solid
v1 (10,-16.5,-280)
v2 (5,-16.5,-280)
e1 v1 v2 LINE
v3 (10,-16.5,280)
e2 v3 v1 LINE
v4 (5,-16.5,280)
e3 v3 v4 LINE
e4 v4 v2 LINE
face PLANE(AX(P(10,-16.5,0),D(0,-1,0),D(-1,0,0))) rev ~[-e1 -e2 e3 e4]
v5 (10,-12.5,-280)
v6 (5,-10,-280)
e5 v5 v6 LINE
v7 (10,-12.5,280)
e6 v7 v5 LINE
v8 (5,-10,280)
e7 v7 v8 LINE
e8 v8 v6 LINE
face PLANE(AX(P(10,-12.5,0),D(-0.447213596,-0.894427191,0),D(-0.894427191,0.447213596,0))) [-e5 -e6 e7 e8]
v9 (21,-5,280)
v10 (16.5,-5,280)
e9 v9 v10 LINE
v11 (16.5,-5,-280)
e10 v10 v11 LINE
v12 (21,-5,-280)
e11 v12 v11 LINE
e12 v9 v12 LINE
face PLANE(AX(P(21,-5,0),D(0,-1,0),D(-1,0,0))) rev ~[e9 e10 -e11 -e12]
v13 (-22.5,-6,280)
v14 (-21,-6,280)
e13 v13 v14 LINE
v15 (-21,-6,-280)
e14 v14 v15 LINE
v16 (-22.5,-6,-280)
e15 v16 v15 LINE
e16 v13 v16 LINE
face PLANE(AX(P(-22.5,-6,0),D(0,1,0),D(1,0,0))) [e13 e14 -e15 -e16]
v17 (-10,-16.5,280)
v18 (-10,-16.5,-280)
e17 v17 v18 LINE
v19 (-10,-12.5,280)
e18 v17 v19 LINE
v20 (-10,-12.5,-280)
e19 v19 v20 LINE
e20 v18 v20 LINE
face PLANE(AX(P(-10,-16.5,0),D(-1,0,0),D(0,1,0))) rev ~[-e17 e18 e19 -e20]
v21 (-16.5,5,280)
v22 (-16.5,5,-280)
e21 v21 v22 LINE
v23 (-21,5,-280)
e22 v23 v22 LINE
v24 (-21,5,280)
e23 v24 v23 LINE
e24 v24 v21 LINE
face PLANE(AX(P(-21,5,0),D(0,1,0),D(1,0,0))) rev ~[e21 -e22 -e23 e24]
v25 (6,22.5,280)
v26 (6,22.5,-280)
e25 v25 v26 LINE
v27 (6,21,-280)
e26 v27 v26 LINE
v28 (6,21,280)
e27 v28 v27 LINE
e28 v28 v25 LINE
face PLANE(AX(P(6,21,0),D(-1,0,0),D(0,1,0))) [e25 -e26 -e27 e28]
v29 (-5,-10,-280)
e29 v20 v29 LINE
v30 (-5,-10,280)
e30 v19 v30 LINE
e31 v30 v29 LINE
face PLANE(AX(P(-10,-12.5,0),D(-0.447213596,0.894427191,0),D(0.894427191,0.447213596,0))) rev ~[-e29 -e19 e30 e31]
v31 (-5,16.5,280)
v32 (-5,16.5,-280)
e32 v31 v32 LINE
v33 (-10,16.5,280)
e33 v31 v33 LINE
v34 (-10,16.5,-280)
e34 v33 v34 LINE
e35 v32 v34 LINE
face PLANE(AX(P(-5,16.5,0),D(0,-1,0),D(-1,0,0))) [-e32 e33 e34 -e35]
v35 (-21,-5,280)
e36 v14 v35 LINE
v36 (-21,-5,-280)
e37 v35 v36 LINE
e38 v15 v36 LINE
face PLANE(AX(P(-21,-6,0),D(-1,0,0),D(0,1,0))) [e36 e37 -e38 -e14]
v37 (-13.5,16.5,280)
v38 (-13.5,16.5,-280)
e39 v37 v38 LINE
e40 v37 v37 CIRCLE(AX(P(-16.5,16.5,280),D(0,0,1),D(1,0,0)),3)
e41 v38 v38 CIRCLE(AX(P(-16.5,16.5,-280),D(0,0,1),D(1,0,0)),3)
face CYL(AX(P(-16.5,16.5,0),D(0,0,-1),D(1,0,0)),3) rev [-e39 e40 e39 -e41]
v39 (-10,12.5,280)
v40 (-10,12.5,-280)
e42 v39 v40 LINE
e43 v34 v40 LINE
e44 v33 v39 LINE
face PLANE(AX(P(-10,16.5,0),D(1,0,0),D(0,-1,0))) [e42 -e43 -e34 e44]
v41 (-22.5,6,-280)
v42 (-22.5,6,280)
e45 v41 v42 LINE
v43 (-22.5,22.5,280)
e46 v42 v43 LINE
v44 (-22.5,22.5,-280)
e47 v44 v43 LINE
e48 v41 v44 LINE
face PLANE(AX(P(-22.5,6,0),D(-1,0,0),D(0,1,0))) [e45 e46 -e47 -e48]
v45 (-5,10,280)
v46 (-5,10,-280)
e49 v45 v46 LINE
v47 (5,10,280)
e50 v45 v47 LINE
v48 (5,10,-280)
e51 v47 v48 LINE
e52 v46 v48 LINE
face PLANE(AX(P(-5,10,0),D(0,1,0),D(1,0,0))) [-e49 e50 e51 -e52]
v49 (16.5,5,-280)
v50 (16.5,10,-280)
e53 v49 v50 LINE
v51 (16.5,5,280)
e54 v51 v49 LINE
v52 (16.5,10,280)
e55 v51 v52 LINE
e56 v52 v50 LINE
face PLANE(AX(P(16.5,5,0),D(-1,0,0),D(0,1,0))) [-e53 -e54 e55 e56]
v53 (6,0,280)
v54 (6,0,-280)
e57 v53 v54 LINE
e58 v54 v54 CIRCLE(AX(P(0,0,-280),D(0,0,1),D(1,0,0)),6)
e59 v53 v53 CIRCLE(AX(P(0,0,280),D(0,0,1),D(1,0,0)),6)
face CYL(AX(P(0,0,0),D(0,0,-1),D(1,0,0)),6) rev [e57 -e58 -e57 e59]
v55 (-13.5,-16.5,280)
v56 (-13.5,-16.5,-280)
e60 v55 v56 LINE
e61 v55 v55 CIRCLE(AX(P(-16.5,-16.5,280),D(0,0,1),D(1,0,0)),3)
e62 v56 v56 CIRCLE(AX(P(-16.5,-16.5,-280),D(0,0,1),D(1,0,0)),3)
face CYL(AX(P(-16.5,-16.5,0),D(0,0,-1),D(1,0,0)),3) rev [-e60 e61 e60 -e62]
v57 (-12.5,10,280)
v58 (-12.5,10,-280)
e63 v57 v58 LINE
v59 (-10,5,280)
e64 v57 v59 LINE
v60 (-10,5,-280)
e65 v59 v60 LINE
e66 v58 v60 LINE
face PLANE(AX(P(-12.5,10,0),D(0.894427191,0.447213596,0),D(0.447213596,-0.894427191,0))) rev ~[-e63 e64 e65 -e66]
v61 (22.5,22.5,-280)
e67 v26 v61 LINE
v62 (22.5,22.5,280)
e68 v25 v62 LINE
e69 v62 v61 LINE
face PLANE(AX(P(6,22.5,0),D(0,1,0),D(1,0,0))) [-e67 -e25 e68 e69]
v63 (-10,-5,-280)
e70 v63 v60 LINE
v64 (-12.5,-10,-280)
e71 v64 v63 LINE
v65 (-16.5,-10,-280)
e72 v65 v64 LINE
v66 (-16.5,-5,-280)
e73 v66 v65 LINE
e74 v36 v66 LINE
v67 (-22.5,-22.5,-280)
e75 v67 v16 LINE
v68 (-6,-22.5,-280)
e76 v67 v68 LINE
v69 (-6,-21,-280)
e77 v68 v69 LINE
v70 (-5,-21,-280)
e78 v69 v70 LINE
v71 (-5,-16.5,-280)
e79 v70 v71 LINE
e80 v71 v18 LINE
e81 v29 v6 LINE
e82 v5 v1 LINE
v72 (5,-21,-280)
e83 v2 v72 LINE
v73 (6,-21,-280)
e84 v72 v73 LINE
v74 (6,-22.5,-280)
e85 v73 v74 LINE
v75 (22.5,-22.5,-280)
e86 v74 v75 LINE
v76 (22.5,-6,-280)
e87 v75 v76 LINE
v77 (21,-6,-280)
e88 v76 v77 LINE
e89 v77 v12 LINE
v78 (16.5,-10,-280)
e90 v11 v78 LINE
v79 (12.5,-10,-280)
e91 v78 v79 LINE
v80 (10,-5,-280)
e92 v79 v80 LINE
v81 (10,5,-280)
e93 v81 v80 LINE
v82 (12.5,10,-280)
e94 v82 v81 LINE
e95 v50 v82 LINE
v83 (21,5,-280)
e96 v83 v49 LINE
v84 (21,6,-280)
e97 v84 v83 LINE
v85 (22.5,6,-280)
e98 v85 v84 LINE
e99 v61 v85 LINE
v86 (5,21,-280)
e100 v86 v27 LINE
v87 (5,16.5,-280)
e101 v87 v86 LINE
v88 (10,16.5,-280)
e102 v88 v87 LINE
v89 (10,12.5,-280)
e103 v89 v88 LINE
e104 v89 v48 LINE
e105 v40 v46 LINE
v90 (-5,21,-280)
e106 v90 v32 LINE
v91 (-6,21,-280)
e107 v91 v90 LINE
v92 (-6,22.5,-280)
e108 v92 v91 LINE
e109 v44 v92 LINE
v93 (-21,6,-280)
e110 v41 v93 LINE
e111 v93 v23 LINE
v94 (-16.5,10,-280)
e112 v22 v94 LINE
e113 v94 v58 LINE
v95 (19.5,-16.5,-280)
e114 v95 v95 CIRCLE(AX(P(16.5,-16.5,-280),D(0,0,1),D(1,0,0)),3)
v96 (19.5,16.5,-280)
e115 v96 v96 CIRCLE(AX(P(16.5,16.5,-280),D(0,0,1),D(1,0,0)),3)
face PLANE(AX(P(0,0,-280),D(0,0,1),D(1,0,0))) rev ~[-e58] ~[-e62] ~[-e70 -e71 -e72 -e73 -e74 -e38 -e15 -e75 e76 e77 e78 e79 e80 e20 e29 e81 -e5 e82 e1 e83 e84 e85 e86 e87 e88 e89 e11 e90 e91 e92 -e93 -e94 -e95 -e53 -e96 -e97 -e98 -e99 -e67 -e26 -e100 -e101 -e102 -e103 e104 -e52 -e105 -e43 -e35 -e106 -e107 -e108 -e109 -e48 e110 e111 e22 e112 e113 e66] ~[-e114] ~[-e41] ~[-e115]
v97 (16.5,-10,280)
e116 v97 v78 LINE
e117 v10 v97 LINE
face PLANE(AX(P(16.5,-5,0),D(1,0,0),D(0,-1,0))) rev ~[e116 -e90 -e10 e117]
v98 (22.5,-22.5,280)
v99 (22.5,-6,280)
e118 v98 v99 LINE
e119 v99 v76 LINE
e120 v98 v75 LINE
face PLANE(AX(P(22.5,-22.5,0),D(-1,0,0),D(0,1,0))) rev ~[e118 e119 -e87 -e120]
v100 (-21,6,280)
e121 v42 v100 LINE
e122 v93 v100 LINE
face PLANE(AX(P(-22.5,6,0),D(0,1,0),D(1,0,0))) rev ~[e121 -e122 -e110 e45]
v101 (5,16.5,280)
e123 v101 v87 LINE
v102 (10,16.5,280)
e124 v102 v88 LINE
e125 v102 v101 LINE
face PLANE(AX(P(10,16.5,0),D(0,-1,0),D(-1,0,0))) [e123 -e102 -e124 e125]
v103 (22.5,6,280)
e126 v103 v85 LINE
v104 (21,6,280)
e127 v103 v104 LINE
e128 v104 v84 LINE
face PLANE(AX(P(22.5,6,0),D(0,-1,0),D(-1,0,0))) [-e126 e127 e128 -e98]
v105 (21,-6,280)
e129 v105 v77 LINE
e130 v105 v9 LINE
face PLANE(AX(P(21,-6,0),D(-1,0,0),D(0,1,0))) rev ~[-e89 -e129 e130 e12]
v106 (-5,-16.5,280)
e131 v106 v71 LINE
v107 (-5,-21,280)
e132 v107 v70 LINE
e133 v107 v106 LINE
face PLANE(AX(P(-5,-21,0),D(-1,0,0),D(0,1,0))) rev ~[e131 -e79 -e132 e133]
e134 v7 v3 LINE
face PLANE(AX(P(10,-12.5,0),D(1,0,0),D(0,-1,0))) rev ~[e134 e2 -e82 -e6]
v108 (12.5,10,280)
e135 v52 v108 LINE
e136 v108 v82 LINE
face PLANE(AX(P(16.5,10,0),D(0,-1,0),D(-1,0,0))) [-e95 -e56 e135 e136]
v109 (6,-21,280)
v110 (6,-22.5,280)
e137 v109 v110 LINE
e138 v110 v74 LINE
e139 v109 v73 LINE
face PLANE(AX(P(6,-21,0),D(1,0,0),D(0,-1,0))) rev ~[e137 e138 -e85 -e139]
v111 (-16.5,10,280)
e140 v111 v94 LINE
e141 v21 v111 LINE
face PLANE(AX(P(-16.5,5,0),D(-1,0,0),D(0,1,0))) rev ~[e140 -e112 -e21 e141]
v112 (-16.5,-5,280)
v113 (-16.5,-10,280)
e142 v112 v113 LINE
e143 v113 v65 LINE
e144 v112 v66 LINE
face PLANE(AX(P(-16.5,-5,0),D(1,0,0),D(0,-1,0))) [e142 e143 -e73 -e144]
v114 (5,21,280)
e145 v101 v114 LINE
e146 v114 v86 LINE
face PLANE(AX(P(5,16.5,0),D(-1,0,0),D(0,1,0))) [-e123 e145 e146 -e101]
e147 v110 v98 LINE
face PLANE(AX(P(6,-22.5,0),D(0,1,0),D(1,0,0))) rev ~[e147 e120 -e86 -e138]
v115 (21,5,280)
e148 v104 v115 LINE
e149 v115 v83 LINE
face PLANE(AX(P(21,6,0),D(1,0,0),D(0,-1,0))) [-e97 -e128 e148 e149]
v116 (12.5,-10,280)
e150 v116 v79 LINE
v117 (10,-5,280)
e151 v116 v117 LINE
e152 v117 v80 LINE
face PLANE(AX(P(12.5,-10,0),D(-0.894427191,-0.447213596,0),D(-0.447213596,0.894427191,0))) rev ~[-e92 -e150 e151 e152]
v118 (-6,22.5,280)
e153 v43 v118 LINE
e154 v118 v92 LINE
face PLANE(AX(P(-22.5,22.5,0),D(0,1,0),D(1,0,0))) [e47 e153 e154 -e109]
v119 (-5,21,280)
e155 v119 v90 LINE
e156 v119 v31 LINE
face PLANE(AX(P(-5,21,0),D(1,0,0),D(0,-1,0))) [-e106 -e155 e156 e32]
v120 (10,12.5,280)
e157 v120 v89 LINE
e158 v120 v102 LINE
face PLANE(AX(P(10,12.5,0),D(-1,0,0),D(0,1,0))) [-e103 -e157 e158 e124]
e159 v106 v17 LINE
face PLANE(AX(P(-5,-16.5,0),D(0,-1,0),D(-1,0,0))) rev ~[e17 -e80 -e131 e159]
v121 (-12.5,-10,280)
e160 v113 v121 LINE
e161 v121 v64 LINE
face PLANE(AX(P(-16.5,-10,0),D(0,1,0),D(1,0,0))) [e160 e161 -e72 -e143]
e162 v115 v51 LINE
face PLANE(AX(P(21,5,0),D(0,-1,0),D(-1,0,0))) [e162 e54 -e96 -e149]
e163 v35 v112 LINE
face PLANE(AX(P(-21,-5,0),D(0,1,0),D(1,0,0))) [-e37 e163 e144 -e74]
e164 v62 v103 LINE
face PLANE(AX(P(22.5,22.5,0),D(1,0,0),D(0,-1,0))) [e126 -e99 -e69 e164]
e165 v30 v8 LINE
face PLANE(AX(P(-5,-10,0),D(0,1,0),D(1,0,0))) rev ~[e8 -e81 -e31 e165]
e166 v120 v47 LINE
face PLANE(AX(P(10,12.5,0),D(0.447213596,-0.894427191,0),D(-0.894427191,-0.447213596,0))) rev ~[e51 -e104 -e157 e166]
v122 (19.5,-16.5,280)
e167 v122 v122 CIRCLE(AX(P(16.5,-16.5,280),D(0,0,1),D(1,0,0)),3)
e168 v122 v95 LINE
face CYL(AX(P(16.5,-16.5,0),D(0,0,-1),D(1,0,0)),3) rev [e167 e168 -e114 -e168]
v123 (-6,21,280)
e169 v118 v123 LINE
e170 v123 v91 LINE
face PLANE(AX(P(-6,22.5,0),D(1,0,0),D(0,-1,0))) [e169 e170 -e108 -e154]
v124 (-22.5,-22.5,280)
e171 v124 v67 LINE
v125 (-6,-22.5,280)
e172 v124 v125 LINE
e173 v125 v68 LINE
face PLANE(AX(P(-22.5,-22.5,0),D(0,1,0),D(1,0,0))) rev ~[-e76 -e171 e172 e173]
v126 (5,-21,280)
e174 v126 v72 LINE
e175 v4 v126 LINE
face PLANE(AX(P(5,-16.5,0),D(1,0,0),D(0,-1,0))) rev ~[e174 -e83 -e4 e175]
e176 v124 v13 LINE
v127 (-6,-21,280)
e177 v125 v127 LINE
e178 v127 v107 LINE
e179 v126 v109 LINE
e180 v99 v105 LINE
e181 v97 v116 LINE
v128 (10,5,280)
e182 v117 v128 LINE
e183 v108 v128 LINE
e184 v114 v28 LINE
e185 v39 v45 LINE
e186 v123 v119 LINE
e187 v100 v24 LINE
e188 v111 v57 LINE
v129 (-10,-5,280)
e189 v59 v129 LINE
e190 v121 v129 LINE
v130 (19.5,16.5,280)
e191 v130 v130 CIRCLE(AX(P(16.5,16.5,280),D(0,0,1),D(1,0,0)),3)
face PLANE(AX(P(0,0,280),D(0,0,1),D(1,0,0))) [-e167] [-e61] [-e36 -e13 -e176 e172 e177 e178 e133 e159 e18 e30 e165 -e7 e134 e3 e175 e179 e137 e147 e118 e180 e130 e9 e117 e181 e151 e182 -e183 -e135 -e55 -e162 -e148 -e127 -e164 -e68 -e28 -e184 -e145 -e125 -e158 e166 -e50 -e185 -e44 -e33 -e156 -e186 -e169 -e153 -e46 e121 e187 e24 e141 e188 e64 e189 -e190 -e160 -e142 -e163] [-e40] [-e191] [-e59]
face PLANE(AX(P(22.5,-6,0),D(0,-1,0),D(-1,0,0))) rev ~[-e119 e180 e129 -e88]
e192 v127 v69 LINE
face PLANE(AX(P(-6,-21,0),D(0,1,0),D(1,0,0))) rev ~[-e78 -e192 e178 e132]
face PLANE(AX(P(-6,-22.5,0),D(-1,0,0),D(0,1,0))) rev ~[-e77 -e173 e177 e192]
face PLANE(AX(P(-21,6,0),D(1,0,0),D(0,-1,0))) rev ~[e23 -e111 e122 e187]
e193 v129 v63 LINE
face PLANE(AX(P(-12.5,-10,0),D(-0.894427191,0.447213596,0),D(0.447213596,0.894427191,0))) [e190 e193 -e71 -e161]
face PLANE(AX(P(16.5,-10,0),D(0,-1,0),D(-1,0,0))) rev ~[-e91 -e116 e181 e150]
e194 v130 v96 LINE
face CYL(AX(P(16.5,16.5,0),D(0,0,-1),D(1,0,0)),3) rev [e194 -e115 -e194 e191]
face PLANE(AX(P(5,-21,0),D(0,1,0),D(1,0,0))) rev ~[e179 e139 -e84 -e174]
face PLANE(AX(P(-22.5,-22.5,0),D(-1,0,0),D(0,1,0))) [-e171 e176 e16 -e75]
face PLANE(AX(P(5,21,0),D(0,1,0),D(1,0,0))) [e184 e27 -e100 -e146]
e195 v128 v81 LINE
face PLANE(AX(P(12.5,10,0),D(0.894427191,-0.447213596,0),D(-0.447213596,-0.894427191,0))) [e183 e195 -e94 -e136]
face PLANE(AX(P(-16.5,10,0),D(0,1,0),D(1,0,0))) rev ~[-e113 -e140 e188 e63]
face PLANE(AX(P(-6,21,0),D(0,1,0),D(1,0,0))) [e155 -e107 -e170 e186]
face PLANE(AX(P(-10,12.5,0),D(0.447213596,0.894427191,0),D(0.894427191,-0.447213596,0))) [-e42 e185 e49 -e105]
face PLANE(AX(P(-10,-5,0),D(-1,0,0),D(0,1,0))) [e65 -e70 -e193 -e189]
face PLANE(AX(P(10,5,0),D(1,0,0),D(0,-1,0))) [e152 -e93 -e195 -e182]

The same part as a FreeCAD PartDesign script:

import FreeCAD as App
import Part
import Sketcher

V = App.Vector


def add_polygon(sketch, points):
    """Adds a closed chain of lines whose ends are joined by coincident constraints."""
    first, n = sketch.GeometryCount, len(points)
    for a, b in zip(points, points[1:] + points[:1]):
        sketch.addGeometry(Part.LineSegment(App.Vector(*a, 0), App.Vector(*b, 0)), False)
    for i in range(n):
        sketch.addConstraint(Sketcher.Constraint("Coincident", first + i, 2, first + (i + 1) % n, 1))

doc = App.newDocument("Part")
body = doc.addObject("PartDesign::Body", "Body")

sketch1 = body.newObject("Sketcher::SketchObject", "Sketch")
sketch1.AttachmentSupport = (doc.getObject("XY_Plane"), [""])
sketch1.MapMode = "FlatFace"
add_polygon(sketch1, [(-6, 22.5), (-22.5, 22.5), (-22.5, 6), (-21, 6), (-21, 5), (-16.5, 5), (-16.5, 10), (-12.5, 10), (-10, 5), (-10, -5), (-12.5, -10), (-16.5, -10), (-16.5, -5), (-21, -5), (-21, -6), (-22.5, -6), (-22.5, -22.5), (-6, -22.5), (-6, -21), (-5, -21), (-5, -16.5), (-10, -16.5), (-10, -12.5), (-5, -10), (5, -10), (10, -12.5), (10, -16.5), (5, -16.5), (5, -21), (6, -21), (6, -22.5), (22.5, -22.5), (22.5, -6), (21, -6), (21, -5), (16.5, -5), (16.5, -10), (12.5, -10), (10, -5), (10, 5), (12.5, 10), (16.5, 10), (16.5, 5), (21, 5), (21, 6), (22.5, 6), (22.5, 22.5), (6, 22.5), (6, 21), (5, 21), (5, 16.5), (10, 16.5), (10, 12.5), (5, 10), (-5, 10), (-10, 12.5), (-10, 16.5), (-5, 16.5), (-5, 21), (-6, 21)])
sketch1.addGeometry(Part.Circle(V(-16.5, -16.5, 0), V(0, 0, 1), 3), False)
sketch1.addGeometry(Part.Circle(V(16.5, -16.5, 0), V(0, 0, 1), 3), False)
sketch1.addGeometry(Part.Circle(V(-16.5, 16.5, 0), V(0, 0, 1), 3), False)
sketch1.addGeometry(Part.Circle(V(0, 0, 0), V(0, 0, 1), 6), False)
sketch1.addGeometry(Part.Circle(V(16.5, 16.5, 0), V(0, 0, 1), 3), False)
sketch1.addConstraint([
    Sketcher.Constraint("Horizontal", 0),
    Sketcher.Constraint("Vertical", 1),
    Sketcher.Constraint("Horizontal", 2),
    Sketcher.Constraint("Vertical", 3),
    Sketcher.Constraint("Horizontal", 4),
    Sketcher.Constraint("Vertical", 5),
    Sketcher.Constraint("Horizontal", 6),
    Sketcher.Constraint("Vertical", 8),
    Sketcher.Constraint("Horizontal", 10),
    Sketcher.Constraint("Vertical", 11),
    Sketcher.Constraint("Horizontal", 12),
    Sketcher.Constraint("Vertical", 13),
    Sketcher.Constraint("Horizontal", 14),
    Sketcher.Constraint("Vertical", 15),
    Sketcher.Constraint("Horizontal", 16),
    Sketcher.Constraint("Vertical", 17),
    Sketcher.Constraint("Horizontal", 18),
    Sketcher.Constraint("Vertical", 19),
    Sketcher.Constraint("Horizontal", 20),
    Sketcher.Constraint("Vertical", 21),
    Sketcher.Constraint("Horizontal", 23),
    Sketcher.Constraint("Vertical", 25),
    Sketcher.Constraint("Horizontal", 26),
    Sketcher.Constraint("Vertical", 27),
    Sketcher.Constraint("Horizontal", 28),
    Sketcher.Constraint("Vertical", 29),
    Sketcher.Constraint("Horizontal", 30),
    Sketcher.Constraint("Vertical", 31),
    Sketcher.Constraint("Horizontal", 32),
    Sketcher.Constraint("Vertical", 33),
    Sketcher.Constraint("Horizontal", 34),
    Sketcher.Constraint("Vertical", 35),
    Sketcher.Constraint("Horizontal", 36),
    Sketcher.Constraint("Vertical", 38),
    Sketcher.Constraint("Horizontal", 40),
    Sketcher.Constraint("Vertical", 41),
    Sketcher.Constraint("Horizontal", 42),
    Sketcher.Constraint("Vertical", 43),
    Sketcher.Constraint("Horizontal", 44),
    Sketcher.Constraint("Vertical", 45),
    Sketcher.Constraint("Horizontal", 46),
    Sketcher.Constraint("Vertical", 47),
    Sketcher.Constraint("Horizontal", 48),
    Sketcher.Constraint("Vertical", 49),
    Sketcher.Constraint("Horizontal", 50),
    Sketcher.Constraint("Vertical", 51),
    Sketcher.Constraint("Horizontal", 53),
    Sketcher.Constraint("Vertical", 55),
    Sketcher.Constraint("Horizontal", 56),
    Sketcher.Constraint("Vertical", 57),
    Sketcher.Constraint("Horizontal", 58),
    Sketcher.Constraint("Vertical", 59),
    Sketcher.Constraint("Coincident", 63, 3, -1, 1),
    Sketcher.Constraint("Equal", 60, 61),
    Sketcher.Constraint("Equal", 61, 62),
    Sketcher.Constraint("Equal", 62, 64),
    Sketcher.Constraint("Symmetric", 61, 3, 62, 3, -1, 1),
    Sketcher.Constraint("Symmetric", 60, 3, 64, 3, -1, 1),
    Sketcher.Constraint("Symmetric", 0, 2, 30, 2, -1, 1),
    Sketcher.Constraint("Symmetric", 2, 2, 32, 2, -1, 1),
    Sketcher.Constraint("Symmetric", 4, 2, 34, 2, -1, 1),
    Sketcher.Constraint("Symmetric", 6, 2, 36, 2, -1, 1),
    Sketcher.Constraint("Symmetric", 7, 2, 37, 2, -1, 1),
    Sketcher.Constraint("Symmetric", 9, 2, 39, 2, -1, 1),
    Sketcher.Constraint("Symmetric", 11, 2, 41, 2, -1, 1),
    Sketcher.Constraint("Symmetric", 13, 2, 43, 2, -1, 1),
    Sketcher.Constraint("Symmetric", 15, 2, 45, 2, -1, 1),
    Sketcher.Constraint("Symmetric", 17, 2, 47, 2, -1, 1),
    Sketcher.Constraint("Symmetric", 19, 2, 49, 2, -1, 1),
    Sketcher.Constraint("Symmetric", 21, 2, 51, 2, -1, 1),
    Sketcher.Constraint("Symmetric", 22, 2, 52, 2, -1, 1),
    Sketcher.Constraint("Symmetric", 24, 2, 54, 2, -1, 1),
    Sketcher.Constraint("Symmetric", 26, 2, 56, 2, -1, 1),
    Sketcher.Constraint("Symmetric", 28, 2, 58, 2, -1, 1),
    Sketcher.Constraint("Symmetric", 60, 3, 61, 3, -2),
    Sketcher.Constraint("Symmetric", 21, 2, 24, 2, -2),
    Sketcher.Constraint("Symmetric", 19, 2, 26, 2, -2),
    Sketcher.Constraint("Symmetric", 17, 2, 28, 2, -2),
    Sketcher.Constraint("Symmetric", 15, 2, 30, 2, -2),
    Sketcher.Constraint("Symmetric", 13, 2, 32, 2, -2),
    Sketcher.Constraint("Symmetric", 11, 2, 34, 2, -2),
    Sketcher.Constraint("Symmetric", 9, 2, 36, 2, -2),
    Sketcher.Constraint("Perpendicular", 7, 22),
    Sketcher.Constraint("Perpendicular", 9, 24),
    Sketcher.Constraint("Perpendicular", 24, 39),
    Sketcher.Constraint("Perpendicular", 39, 54),
    Sketcher.Constraint("Horizontal", 4, 2, 7, 2),
    Sketcher.Constraint("Horizontal", 8, 2, 11, 2),
    Sketcher.Constraint("Horizontal", 61, 3, 19, 2),
    Sketcher.Constraint("Horizontal", 10, 2, 22, 2),
    Sketcher.Constraint("Vertical", 62, 3, 4, 2),
    Sketcher.Constraint("Vertical", 8, 2, 20, 2),
    Sketcher.Constraint("Vertical", 19, 2, 22, 2),
    Sketcher.Constraint("Equal", 46, 1),
    Sketcher.Constraint("Equal", 58, 3),
    Sketcher.Constraint("Equal", 56, 5),
    Sketcher.Constraint("Equal", 53, 8),
    Sketcher.Constraint("Equal", 44, 17),
    Sketcher.Constraint("Equal", 42, 19),
    Sketcher.Constraint("Diameter", 60, 6.0),
    Sketcher.Constraint("Diameter", 63, 12.0),
    Sketcher.Constraint("DistanceX", 6, 1, 6, 2, 4.0),
    Sketcher.Constraint("DistanceX", 20, 2, 20, 1, 5.0),
    Sketcher.Constraint("DistanceX", 23, 1, 23, 2, 10.0),
    Sketcher.Constraint("DistanceX", 0, 2, 0, 1, 16.5),
    Sketcher.Constraint("DistanceX", 2, 1, 2, 2, 1.5),
    Sketcher.Constraint("DistanceY", -1, 1, 1, 2, 6.0),
    Sketcher.Constraint("DistanceX", 60, 3, -1, 1, 16.5),
])
pad1 = body.newObject("PartDesign::Pad", "Pad")
pad1.Profile = sketch1
pad1.Length = 560
pad1.Midplane = True

doc.recompute()
